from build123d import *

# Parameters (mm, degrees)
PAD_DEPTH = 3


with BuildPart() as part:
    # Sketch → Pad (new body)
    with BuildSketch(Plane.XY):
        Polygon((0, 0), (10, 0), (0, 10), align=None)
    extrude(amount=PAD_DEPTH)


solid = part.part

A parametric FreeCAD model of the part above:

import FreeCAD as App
import Part
import Sketcher

V = App.Vector

doc = App.newDocument("Part")
body = doc.addObject("PartDesign::Body", "Body")

# Sketch on XY plane
sketch1 = body.newObject("Sketcher::SketchObject", "Sketch")
sketch1.AttachmentSupport = (doc.getObject("XY_Plane"), [""])
sketch1.MapMode = "FlatFace"
sketch1.addGeometry(Part.LineSegment(V(0, 0, 0), V(10, 0, 0)), False)
sketch1.addGeometry(Part.LineSegment(V(10, 0, 0), V(0, 10, 0)), False)
sketch1.addGeometry(Part.LineSegment(V(0, 10, 0), V(0, 0, 0)), False)
sketch1.addConstraint(Sketcher.Constraint("Coincident", 0, 2, 1, 1))
sketch1.addConstraint(Sketcher.Constraint("Coincident", 1, 2, 2, 1))
sketch1.addConstraint(Sketcher.Constraint("Coincident", 2, 2, 0, 1))
sketch1.addConstraint(Sketcher.Constraint("Horizontal", 0))
sketch1.addConstraint(Sketcher.Constraint("Vertical", 2))
sketch1.addConstraint(Sketcher.Constraint("Coincident", 2, 2, -1, 1))
sketch1.addConstraint(Sketcher.Constraint("Equal", 0, 2))
sketch1.addConstraint(Sketcher.Constraint("DistanceX", 0, 1, 0, 2, 10.0))
pad1 = body.newObject("PartDesign::Pad", "Pad")
pad1.Profile = sketch1
pad1.Length = 3

doc.recompute()
